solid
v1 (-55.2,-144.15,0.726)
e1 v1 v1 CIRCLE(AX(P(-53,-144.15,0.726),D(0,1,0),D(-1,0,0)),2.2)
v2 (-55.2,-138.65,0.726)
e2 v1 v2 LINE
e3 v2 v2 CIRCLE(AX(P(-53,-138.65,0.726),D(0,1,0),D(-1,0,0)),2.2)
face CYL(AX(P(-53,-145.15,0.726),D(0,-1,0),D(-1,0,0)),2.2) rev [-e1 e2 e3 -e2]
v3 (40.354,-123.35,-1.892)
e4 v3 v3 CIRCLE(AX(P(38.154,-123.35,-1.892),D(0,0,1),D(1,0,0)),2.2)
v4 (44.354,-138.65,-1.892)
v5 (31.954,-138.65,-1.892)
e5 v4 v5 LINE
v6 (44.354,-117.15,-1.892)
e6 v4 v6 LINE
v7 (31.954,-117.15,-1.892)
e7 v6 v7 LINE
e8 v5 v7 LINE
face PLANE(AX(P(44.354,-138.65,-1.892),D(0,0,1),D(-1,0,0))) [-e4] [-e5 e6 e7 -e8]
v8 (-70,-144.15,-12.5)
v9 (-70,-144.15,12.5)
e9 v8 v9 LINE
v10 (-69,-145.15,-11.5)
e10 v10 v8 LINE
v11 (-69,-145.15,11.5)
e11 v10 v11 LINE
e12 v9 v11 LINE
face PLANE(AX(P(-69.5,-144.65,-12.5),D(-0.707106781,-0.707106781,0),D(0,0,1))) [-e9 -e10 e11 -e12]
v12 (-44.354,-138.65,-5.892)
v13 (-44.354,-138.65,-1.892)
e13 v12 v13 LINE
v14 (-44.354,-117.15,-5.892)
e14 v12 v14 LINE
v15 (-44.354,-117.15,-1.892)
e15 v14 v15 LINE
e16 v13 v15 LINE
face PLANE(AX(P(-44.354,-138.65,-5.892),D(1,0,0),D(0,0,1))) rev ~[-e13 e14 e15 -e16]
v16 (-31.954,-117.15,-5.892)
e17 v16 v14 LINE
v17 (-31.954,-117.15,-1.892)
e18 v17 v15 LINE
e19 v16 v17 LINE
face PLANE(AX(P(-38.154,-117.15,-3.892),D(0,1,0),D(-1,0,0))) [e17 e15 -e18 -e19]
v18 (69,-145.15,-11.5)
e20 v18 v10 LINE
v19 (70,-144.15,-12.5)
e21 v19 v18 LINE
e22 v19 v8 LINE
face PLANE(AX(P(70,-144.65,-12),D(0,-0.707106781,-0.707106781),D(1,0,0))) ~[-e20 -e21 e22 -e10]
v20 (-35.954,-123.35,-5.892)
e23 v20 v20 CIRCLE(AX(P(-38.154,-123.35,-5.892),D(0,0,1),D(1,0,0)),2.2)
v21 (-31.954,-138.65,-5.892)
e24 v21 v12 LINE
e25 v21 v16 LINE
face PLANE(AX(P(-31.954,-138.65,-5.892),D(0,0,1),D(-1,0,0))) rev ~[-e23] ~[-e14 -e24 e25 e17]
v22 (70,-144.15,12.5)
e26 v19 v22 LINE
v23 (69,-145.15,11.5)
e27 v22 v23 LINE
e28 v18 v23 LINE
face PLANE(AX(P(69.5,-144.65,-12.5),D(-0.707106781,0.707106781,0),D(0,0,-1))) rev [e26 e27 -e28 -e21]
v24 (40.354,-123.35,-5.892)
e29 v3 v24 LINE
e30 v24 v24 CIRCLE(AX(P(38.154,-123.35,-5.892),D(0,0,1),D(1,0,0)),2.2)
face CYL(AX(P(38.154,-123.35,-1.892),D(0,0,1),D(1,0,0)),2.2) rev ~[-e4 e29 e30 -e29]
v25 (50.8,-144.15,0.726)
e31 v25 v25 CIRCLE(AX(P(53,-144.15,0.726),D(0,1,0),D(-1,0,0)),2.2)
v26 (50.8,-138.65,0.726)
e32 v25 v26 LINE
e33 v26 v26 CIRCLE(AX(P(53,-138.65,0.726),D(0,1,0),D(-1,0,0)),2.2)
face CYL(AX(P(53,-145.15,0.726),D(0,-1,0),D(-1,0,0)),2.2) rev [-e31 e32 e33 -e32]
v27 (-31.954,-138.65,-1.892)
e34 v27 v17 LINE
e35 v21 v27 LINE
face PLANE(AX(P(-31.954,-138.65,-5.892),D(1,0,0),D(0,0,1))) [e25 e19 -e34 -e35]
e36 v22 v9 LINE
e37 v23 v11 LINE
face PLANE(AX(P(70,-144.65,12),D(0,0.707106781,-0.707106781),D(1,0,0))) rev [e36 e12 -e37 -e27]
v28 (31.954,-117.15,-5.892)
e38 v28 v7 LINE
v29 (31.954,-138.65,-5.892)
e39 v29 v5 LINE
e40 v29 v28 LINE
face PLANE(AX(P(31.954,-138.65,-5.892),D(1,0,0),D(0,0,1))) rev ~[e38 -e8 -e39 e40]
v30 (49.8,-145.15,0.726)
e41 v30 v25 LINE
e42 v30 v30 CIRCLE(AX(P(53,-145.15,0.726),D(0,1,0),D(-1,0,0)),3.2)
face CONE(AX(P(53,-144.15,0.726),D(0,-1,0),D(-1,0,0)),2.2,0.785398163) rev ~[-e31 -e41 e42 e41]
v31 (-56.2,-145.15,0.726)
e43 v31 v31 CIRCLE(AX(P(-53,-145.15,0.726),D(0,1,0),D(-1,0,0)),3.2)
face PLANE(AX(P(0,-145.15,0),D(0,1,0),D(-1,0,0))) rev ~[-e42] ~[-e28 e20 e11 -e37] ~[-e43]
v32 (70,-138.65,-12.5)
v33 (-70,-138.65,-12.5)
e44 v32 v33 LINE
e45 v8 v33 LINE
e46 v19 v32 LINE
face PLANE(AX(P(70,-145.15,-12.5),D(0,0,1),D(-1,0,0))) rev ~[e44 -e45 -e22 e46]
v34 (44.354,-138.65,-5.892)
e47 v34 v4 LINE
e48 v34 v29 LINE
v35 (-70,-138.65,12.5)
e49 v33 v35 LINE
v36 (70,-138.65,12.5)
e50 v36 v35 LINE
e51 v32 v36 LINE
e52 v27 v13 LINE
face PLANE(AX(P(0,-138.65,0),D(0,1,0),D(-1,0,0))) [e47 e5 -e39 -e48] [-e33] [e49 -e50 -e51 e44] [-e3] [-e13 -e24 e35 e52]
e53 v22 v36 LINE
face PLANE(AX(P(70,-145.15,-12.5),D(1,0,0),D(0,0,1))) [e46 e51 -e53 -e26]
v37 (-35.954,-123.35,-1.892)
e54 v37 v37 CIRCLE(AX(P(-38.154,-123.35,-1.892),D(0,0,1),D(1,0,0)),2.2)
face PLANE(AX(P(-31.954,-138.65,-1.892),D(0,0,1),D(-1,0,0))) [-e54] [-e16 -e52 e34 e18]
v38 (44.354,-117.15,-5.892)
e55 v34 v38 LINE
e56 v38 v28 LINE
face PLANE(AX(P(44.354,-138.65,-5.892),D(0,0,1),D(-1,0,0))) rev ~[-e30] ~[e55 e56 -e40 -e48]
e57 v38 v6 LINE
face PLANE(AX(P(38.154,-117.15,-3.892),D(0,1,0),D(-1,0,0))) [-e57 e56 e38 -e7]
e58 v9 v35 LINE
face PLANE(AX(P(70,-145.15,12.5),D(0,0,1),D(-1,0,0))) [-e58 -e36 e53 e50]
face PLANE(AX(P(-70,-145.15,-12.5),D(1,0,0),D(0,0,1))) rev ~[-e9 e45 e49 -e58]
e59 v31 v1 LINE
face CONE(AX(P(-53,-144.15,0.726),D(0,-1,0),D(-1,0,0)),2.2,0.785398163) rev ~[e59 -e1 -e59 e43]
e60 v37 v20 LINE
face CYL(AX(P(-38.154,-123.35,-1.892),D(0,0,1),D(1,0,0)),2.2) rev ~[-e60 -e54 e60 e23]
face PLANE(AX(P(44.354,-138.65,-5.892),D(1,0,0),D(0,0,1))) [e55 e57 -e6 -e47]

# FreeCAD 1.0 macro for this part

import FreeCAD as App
import Part
import Sketcher
from FreeCAD import Vector
Q = App.Units.Quantity


def edges_at(feature, points):
    """Names of the edges that pass closest to the given points."""
    edges = feature.Shape.Edges
    near = lambda p: min(range(len(edges)), key=lambda i: edges[i].distToShape(Part.Vertex(*p))[0])
    return sorted({f"Edge{near(p) + 1}" for p in points})


def add_polygon(sketch, points):
    """Adds a closed chain of lines whose ends are joined by coincident constraints."""
    first, n = sketch.GeometryCount, len(points)
    for a, b in zip(points, points[1:] + points[:1]):
        sketch.addGeometry(Part.LineSegment(App.Vector(*a, 0), App.Vector(*b, 0)), False)
    for i in range(n):
        sketch.addConstraint(Sketcher.Constraint("Coincident", first + i, 2, first + (i + 1) % n, 1))

doc = App.newDocument("Part")
params = doc.addObject("Spreadsheet::Sheet", "Params")
for row, (alias, value) in enumerate([
    ("sketch1_diameter", "4.4 mm"),
    ("sketch1_width", "140 mm"),
    ("sketch1_height", "25 mm"),
    ("pad1_length", "6.5 mm"),
    ("sketch2_height", "4 mm"),
    ("sketch2_width", "12.4 mm"),
    ("pad2_length", "21.5 mm"),
    ("sketch3_diameter", "4.4 mm"),
    ("chamfer_size", "1 mm"),
], start=1):
    params.set(f"A{row}", alias)
    params.set(f"B{row}", "=" + value)
    params.setAlias(f"B{row}", alias)

body = doc.addObject("PartDesign::Body", "Body")

sketch1 = body.newObject("Sketcher::SketchObject", "Sketch")
sketch1.AttachmentSupport = (doc.getObject("XY_Plane"), [""])
sketch1.MapMode = "FlatFace"
add_polygon(sketch1, [(-70, 12.5), (-70, -12.5), (70, -12.5), (70, 12.5)])
sketch1.addGeometry(Part.Circle(Vector(-53, 0.7, 0), Vector(0, 0, 1), 2.2), False)
sketch1.addGeometry(Part.Circle(Vector(53, 0.7, 0), Vector(0, 0, 1), 2.2), False)
sketch1.addConstraint([
    Sketcher.Constraint("Vertical", 0),
    Sketcher.Constraint("Horizontal", 1),
    Sketcher.Constraint("Vertical", 2),
    Sketcher.Constraint("Horizontal", 3),
    Sketcher.Constraint("Equal", 4, 5),
    Sketcher.Constraint("Symmetric", 0, 2, 2, 2, -1, 1),
    Sketcher.Constraint("Symmetric", 4, 3, 5, 3, -2),
    Sketcher.Constraint("Diameter", 4, Q("4.4 mm")),
    Sketcher.Constraint("DistanceX", 1, 1, 1, 2, Q("140 mm")),
    Sketcher.Constraint("DistanceY", 0, 2, 0, 1, Q("25 mm")),
    Sketcher.Constraint("DistanceX", 4, 3, -1, 1, Q("53 mm")),
    Sketcher.Constraint("DistanceY", -1, 1, 4, 3, Q("0.726 mm")),
])
sketch1.setExpression("Constraints[11]", "Params.sketch1_diameter")
sketch1.setExpression("Constraints[12]", "Params.sketch1_width")
sketch1.setExpression("Constraints[13]", "Params.sketch1_height")
pad1 = body.newObject("PartDesign::Pad", "Pad")
pad1.Profile = sketch1
pad1.setExpression("Length", "Params.pad1_length")

sketch2 = body.newObject("Sketcher::SketchObject", "Sketch001")
sketch2.AttachmentSupport = (doc.getObject("XY_Plane"), [""])
sketch2.MapMode = "FlatFace"
sketch2.AttachmentOffset = App.Placement(Vector(0, 0, 6.5), App.Rotation())
add_polygon(sketch2, [(-44.4, -1.9), (-44.4, -5.9), (-32, -5.9), (-32, -1.9)])
add_polygon(sketch2, [(32, -1.9), (32, -5.9), (44.4, -5.9), (44.4, -1.9)])
sketch2.addConstraint([
    Sketcher.Constraint("Vertical", 0),
    Sketcher.Constraint("Horizontal", 1),
    Sketcher.Constraint("Vertical", 2),
    Sketcher.Constraint("Horizontal", 3),
    Sketcher.Constraint("Vertical", 4),
    Sketcher.Constraint("Horizontal", 5),
    Sketcher.Constraint("Vertical", 6),
    Sketcher.Constraint("Horizontal", 7),
    Sketcher.Constraint("Symmetric", 1, 2, 4, 2, -2),
    Sketcher.Constraint("Symmetric", 3, 2, 6, 2, -2),
    Sketcher.Constraint("DistanceY", 0, 2, 0, 1, Q("4 mm")),
    Sketcher.Constraint("DistanceX", 1, 1, 1, 2, Q("12.4 mm")),
    Sketcher.Constraint("DistanceX", 0, 2, -1, 1, Q("44.354 mm")),
    Sketcher.Constraint("DistanceY", 0, 2, -1, 1, Q("5.892 mm")),
])
sketch2.setExpression("Constraints[18]", "Params.sketch2_height")
sketch2.setExpression("Constraints[19]", "Params.sketch2_width")
pad2 = body.newObject("PartDesign::Pad", "Pad001")
pad2.Profile = sketch2
pad2.setExpression("Length", "Params.pad2_length")

sketch3 = body.newObject("Sketcher::SketchObject", "Sketch002")
sketch3.AttachmentSupport = (doc.getObject("XZ_Plane"), [""])
sketch3.MapMode = "FlatFace"
sketch3.AttachmentOffset = App.Placement(Vector(0, 0, 1.892), App.Rotation())
sketch3.addGeometry([
    Part.Circle(Vector(38.2, 21.8, 0), Vector(0, 0, 1), 2.2),
    Part.Circle(Vector(-38.2, 21.8, 0), Vector(0, 0, 1), 2.2),
], False)
sketch3.addConstraint([
    Sketcher.Constraint("Equal", 0, 1),
    Sketcher.Constraint("Symmetric", 0, 3, 1, 3, -2),
    Sketcher.Constraint("Diameter", 0, Q("4.4 mm")),
    Sketcher.Constraint("DistanceY", -1, 1, 0, 3, Q("21.8 mm")),
    Sketcher.Constraint("DistanceX", -1, 1, 0, 3, Q("38.154 mm")),
])
sketch3.setExpression("Constraints[2]", "Params.sketch3_diameter")
pocket1 = body.newObject("PartDesign::Pocket", "Pocket")
pocket1.Profile = sketch3
pocket1.Type = "ThroughAll"
pocket1.Reversed = True
doc.recompute()

chamfer = body.newObject("PartDesign::Chamfer", "Chamfer")
chamfer.Base = (pocket1, edges_at(pocket1, [
    (0, 12.5, 0),
    (70, 0, 0),
    (0, -12.5, 0),
    (-70, 0, 0),
    (50.8, 0.726, 0),
    (-55.2, 0.726, 0),
]))
chamfer.setExpression("Size", "Params.chamfer_size")
body2 = doc.addObject("PartDesign::Body", "Body001")
doc.recompute()

body.Placement = App.Placement(Vector(0, 0, 0), App.Rotation(Vector(1, 0, 0), 90))
boolean = body2.newObject("PartDesign::Boolean", "Boolean")
boolean.Type = "Fuse"
boolean.addObjects([body])
body3 = doc.addObject("PartDesign::Body", "Body002")
doc.recompute()

body2.Placement = App.Placement(Vector(0, -145.15, 0), App.Rotation(Vector(0, 0, 1), 180))
boolean2 = body3.newObject("PartDesign::Boolean", "Boolean001")
boolean2.Type = "Fuse"
boolean2.addObjects([body2])

doc.recompute()
